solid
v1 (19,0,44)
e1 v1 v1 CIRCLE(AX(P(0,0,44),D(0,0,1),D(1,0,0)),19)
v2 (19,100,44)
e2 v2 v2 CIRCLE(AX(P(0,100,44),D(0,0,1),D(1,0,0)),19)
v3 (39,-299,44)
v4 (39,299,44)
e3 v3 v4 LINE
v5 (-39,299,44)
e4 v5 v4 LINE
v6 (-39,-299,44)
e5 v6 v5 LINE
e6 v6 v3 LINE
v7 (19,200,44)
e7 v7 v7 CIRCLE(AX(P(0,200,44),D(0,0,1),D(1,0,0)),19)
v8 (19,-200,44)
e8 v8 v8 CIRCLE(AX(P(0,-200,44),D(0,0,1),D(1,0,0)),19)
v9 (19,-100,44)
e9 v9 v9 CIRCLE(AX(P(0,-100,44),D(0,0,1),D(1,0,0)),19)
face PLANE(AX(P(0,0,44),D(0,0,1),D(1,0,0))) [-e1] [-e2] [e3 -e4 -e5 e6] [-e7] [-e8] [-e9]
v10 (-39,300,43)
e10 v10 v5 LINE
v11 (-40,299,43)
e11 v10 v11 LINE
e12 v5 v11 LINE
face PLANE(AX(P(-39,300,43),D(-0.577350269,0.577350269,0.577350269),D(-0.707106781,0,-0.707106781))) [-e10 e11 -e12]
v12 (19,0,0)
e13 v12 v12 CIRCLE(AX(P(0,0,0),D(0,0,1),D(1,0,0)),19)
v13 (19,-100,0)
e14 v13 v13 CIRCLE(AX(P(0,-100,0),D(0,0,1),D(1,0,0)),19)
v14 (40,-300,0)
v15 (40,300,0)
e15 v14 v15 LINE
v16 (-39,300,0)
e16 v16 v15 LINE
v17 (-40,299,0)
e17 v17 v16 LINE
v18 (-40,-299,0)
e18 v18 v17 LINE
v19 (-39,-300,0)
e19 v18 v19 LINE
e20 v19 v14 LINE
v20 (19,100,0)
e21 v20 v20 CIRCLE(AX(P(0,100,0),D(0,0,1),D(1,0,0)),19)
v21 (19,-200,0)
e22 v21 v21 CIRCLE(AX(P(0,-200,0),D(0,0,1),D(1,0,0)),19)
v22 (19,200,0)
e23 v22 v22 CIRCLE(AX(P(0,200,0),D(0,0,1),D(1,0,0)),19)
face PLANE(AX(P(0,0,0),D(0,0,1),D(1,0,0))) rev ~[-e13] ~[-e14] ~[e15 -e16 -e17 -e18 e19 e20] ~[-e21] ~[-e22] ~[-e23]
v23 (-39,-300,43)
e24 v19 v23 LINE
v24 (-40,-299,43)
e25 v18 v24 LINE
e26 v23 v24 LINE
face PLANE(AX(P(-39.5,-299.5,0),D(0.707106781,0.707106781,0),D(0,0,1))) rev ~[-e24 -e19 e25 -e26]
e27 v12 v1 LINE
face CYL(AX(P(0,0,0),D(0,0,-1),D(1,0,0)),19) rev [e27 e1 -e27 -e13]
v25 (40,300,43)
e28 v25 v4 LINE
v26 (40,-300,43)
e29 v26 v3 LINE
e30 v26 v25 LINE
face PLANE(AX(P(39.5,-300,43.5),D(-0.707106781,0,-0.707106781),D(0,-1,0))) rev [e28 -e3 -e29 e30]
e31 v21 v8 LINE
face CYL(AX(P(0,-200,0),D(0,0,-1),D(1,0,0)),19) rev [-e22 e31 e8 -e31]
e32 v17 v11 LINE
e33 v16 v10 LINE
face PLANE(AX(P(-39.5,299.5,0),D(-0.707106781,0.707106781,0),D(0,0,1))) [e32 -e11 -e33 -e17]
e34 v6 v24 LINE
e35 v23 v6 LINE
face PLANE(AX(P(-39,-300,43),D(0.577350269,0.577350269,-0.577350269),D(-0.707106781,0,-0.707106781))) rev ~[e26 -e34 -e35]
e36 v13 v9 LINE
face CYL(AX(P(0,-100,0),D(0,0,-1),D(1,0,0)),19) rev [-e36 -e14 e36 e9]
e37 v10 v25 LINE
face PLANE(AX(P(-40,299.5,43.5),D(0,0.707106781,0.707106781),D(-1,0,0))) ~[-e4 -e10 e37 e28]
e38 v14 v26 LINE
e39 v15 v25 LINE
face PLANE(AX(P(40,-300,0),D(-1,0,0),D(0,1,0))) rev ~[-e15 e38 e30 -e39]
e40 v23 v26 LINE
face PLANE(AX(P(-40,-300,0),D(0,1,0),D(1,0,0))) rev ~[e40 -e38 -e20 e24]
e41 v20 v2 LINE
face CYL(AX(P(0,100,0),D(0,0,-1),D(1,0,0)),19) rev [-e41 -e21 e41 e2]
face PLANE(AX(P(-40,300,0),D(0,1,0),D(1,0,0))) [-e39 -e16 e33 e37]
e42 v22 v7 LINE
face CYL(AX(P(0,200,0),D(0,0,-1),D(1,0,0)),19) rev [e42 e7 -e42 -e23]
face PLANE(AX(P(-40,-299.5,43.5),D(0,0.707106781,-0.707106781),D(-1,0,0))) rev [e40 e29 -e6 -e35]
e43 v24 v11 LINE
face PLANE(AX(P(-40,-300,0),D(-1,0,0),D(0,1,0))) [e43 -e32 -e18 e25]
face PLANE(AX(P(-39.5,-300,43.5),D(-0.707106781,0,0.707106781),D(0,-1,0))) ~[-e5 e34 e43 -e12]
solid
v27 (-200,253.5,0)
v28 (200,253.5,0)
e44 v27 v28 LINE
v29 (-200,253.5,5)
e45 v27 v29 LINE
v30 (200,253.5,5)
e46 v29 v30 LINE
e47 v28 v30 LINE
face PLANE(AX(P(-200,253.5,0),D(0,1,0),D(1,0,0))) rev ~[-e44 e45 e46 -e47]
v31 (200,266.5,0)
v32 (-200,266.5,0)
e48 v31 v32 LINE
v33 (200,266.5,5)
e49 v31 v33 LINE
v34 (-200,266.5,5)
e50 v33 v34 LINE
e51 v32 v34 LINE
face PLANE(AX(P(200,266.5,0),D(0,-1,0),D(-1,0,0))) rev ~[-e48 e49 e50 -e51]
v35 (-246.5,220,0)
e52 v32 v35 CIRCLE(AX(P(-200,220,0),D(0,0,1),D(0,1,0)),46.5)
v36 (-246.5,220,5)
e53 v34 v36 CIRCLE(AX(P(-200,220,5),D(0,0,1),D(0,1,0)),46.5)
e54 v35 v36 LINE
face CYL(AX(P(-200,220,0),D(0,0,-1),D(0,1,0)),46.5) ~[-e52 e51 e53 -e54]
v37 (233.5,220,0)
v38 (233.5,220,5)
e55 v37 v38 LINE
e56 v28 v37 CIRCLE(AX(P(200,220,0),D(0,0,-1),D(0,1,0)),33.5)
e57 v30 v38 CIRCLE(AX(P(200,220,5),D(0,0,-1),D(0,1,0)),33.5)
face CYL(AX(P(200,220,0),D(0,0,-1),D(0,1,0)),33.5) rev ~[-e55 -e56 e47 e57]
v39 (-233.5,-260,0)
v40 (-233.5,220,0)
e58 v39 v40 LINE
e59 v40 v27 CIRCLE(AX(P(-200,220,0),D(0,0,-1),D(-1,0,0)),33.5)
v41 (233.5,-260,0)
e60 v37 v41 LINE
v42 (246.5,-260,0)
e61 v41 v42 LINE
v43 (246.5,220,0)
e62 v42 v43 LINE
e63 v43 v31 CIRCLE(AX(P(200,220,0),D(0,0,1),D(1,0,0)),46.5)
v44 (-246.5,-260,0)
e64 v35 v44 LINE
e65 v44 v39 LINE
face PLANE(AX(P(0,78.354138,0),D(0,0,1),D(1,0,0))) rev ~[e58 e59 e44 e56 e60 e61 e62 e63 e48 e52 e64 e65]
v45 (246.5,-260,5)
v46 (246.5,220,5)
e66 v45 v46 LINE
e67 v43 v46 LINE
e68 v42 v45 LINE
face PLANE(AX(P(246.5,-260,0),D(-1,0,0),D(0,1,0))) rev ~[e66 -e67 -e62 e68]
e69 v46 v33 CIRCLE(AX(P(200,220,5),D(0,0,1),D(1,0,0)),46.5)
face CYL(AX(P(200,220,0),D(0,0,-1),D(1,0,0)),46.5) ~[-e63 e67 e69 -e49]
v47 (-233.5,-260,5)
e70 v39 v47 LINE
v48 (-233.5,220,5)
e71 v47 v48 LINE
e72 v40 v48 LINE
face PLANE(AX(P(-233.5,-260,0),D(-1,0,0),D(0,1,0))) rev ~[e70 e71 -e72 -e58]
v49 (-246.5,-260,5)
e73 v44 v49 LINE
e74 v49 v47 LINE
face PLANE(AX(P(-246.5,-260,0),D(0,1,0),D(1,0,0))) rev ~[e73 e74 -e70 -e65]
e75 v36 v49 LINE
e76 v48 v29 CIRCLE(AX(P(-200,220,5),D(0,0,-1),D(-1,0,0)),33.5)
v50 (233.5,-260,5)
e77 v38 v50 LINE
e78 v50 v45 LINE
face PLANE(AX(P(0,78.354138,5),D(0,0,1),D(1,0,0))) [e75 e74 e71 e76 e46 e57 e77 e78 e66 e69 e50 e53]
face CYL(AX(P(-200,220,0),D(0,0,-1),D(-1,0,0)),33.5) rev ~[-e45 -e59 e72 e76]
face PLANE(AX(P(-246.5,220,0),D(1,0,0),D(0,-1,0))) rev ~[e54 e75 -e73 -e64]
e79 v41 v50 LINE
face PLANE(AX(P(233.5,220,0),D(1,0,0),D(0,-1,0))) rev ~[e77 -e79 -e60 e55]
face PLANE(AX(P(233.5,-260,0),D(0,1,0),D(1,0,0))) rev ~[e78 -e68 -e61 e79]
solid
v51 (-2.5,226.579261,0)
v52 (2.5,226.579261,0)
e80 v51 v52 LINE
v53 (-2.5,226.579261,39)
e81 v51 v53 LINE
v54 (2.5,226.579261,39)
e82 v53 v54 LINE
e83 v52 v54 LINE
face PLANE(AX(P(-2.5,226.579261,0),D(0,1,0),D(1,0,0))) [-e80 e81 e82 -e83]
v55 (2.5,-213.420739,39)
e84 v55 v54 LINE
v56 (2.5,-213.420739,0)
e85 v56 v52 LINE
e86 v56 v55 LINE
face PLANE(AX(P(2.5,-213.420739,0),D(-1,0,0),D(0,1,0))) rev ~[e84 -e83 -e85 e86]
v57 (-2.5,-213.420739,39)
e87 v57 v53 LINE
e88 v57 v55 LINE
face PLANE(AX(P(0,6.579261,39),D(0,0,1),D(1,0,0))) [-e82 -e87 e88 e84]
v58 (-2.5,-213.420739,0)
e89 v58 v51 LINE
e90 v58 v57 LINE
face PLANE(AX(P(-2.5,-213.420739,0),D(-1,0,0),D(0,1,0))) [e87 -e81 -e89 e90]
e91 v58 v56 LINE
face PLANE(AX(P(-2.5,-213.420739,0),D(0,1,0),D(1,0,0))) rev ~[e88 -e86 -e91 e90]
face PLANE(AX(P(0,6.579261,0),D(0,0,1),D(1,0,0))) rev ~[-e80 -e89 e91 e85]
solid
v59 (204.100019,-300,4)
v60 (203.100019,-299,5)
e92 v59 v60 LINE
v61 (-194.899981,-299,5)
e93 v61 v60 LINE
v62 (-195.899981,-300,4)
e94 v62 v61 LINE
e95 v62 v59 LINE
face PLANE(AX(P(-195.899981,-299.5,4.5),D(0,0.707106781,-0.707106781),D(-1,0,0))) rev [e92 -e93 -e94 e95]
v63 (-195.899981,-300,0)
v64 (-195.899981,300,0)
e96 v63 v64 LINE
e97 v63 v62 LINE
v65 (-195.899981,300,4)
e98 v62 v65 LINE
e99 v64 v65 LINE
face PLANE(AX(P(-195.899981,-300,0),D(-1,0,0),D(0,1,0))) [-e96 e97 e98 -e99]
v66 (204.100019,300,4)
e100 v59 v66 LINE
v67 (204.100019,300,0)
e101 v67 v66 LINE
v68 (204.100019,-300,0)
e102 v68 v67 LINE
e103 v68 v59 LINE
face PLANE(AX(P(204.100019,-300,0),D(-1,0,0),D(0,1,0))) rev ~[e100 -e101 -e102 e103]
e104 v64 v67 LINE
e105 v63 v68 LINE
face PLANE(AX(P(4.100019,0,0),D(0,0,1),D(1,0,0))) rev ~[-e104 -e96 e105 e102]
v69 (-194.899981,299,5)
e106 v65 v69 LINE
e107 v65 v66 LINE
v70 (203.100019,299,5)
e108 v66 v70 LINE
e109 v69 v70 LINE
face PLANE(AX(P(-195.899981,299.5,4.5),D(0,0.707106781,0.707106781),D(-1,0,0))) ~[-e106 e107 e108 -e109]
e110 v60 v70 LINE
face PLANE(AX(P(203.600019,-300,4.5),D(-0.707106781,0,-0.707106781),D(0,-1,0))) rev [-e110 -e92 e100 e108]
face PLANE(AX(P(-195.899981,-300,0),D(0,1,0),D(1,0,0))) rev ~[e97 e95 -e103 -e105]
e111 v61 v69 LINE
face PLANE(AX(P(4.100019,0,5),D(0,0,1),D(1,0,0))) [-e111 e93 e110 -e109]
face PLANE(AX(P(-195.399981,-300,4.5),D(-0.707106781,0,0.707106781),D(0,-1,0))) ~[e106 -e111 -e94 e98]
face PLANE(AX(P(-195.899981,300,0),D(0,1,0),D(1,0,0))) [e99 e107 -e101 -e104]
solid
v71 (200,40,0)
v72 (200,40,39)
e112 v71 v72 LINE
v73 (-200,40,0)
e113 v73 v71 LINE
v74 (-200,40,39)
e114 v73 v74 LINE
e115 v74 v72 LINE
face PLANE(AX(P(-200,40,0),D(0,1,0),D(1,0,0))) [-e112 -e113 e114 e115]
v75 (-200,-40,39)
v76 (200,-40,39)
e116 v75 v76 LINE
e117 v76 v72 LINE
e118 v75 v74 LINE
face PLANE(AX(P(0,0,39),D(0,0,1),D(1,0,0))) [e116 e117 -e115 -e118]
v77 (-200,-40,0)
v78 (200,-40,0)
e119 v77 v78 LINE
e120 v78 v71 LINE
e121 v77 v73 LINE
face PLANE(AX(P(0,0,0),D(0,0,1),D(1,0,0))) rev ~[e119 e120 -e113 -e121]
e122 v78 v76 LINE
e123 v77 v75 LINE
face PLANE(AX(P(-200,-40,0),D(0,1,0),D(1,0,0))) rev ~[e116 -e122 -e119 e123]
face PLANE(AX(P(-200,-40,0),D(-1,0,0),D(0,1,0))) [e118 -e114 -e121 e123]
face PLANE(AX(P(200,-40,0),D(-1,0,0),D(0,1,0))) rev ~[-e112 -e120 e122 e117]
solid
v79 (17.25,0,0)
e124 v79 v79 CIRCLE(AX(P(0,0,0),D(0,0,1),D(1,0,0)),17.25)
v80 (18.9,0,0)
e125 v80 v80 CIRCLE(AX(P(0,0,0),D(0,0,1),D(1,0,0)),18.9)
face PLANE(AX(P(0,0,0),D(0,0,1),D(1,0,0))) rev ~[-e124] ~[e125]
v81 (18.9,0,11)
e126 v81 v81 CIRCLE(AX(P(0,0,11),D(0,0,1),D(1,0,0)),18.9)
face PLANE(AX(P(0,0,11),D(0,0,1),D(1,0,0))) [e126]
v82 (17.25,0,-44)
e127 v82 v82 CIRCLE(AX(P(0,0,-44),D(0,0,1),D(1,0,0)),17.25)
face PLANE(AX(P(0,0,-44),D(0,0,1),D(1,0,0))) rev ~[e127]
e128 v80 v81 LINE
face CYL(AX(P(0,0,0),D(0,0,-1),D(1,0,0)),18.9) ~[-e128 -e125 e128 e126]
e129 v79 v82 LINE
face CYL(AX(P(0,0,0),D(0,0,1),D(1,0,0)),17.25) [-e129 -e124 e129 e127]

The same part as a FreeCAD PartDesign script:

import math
import FreeCAD as App
import Part
import Sketcher
from FreeCAD import Vector
Q = App.Units.Quantity


def edges_at(feature, points):
    """Names of the edges that pass closest to the given points."""
    edges = feature.Shape.Edges
    near = lambda p: min(range(len(edges)), key=lambda i: edges[i].distToShape(Part.Vertex(*p))[0])
    return sorted({f"Edge{near(p) + 1}" for p in points})

doc = App.newDocument("Part")
body = doc.addObject("PartDesign::Body", "Body")

sketch1 = doc.addObject("Sketcher::SketchObject", "Sketch")
body.addObject(sketch1)
sketch1.AttachmentSupport = (doc.XY_Plane, [""])
sketch1.MapMode = "FlatFace"
sketch1.addGeometry([
    Part.LineSegment(Vector(-40, 300, 0), Vector(-40, -300, 0)),
    Part.LineSegment(Vector(-40, -300, 0), Vector(40, -300, 0)),
    Part.LineSegment(Vector(40, -300, 0), Vector(40, 300, 0)),
    Part.LineSegment(Vector(40, 300, 0), Vector(-40, 300, 0)),
    Part.Circle(Vector(0, -200, 0), Vector(0, 0, 1), 19),
    Part.Circle(Vector(0, -100, 0), Vector(0, 0, 1), 19),
    Part.Circle(Vector(0, 0, 0), Vector(0, 0, 1), 19),
    Part.Circle(Vector(0, 100, 0), Vector(0, 0, 1), 19),
    Part.Circle(Vector(0, 200, 0), Vector(0, 0, 1), 19),
], False)
sketch1.addConstraint([
    Sketcher.Constraint("Coincident", 0, 2, 1, 1),
    Sketcher.Constraint("Coincident", 1, 2, 2, 1),
    Sketcher.Constraint("Coincident", 2, 2, 3, 1),
    Sketcher.Constraint("Coincident", 3, 2, 0, 1),
    Sketcher.Constraint("Vertical", 0),
    Sketcher.Constraint("Horizontal", 1),
    Sketcher.Constraint("Vertical", 2),
    Sketcher.Constraint("Horizontal", 3),
    Sketcher.Constraint("Coincident", 6, 3, -1, 1),
    Sketcher.Constraint("Equal", 4, 5),
    Sketcher.Constraint("Equal", 5, 6),
    Sketcher.Constraint("Equal", 6, 7),
    Sketcher.Constraint("Equal", 7, 8),
    Sketcher.Constraint("Symmetric", 5, 3, 7, 3, -1, 1),
    Sketcher.Constraint("Symmetric", 4, 3, 8, 3, -1, 1),
    Sketcher.Constraint("Symmetric", 0, 2, 2, 2, -1, 1),
    Sketcher.Constraint("PointOnObject", 4, 3, -2),
    Sketcher.Constraint("PointOnObject", 5, 3, -2),
    Sketcher.Constraint("Diameter", 4, Q("38 mm")),
    Sketcher.Constraint("DistanceX", 1, 1, 1, 2, Q("80 mm")),
    Sketcher.Constraint("DistanceY", 0, 2, 0, 1, Q("600 mm")),
    Sketcher.Constraint("DistanceY", 4, 3, -1, 1, Q("200 mm")),
    Sketcher.Constraint("DistanceY", 5, 3, -1, 1, Q("100 mm")),
])
pad1 = doc.addObject("PartDesign::Pad", "Pad")
body.addObject(pad1)
pad1.Profile = sketch1
pad1.Length = 44
doc.recompute()

chamfer = doc.addObject("PartDesign::Chamfer", "Chamfer")
body.addObject(chamfer)
chamfer.Base = (pad1, edges_at(pad1, [
    (40, 0, 44),
    (-40, 0, 44),
    (0, -300, 44),
    (0, 300, 44),
    (-40, -300, 22),
    (-40, 300, 22),
]))
chamfer.Size = 1
body2 = doc.addObject("PartDesign::Body", "Body001")

sketch2 = doc.addObject("Sketcher::SketchObject", "Sketch001")
body2.addObject(sketch2)
sketch2.AttachmentSupport = (doc.getObject("XY_Plane001"), [""])
sketch2.MapMode = "FlatFace"
sketch2.addGeometry([
    Part.LineSegment(Vector(-200, 40, 0), Vector(-200, -40, 0)),
    Part.LineSegment(Vector(-200, -40, 0), Vector(200, -40, 0)),
    Part.LineSegment(Vector(200, -40, 0), Vector(200, 40, 0)),
    Part.LineSegment(Vector(200, 40, 0), Vector(-200, 40, 0)),
], False)
sketch2.addConstraint([
    Sketcher.Constraint("Coincident", 0, 2, 1, 1),
    Sketcher.Constraint("Coincident", 1, 2, 2, 1),
    Sketcher.Constraint("Coincident", 2, 2, 3, 1),
    Sketcher.Constraint("Coincident", 3, 2, 0, 1),
    Sketcher.Constraint("Vertical", 0),
    Sketcher.Constraint("Horizontal", 1),
    Sketcher.Constraint("Vertical", 2),
    Sketcher.Constraint("Horizontal", 3),
    Sketcher.Constraint("Symmetric", 0, 2, 2, 2, -1, 1),
    Sketcher.Constraint("DistanceX", 1, 1, 1, 2, Q("400 mm")),
    Sketcher.Constraint("DistanceY", 0, 2, 0, 1, Q("80 mm")),
])
pad2 = doc.addObject("PartDesign::Pad", "Pad001")
body2.addObject(pad2)
pad2.Profile = sketch2
pad2.Length = 39
body3 = doc.addObject("PartDesign::Body", "Body002")

sketch3 = doc.addObject("Sketcher::SketchObject", "Sketch002")
body3.addObject(sketch3)
sketch3.AttachmentSupport = (doc.getObject("XY_Plane002"), [""])
sketch3.MapMode = "FlatFace"
sketch3.addGeometry([
    Part.LineSegment(Vector(-196, 300, 0), Vector(-196, -300, 0)),
    Part.LineSegment(Vector(-196, -300, 0), Vector(204, -300, 0)),
    Part.LineSegment(Vector(204, -300, 0), Vector(204, 300, 0)),
    Part.LineSegment(Vector(204, 300, 0), Vector(-196, 300, 0)),
], False)
sketch3.addConstraint([
    Sketcher.Constraint("Coincident", 0, 2, 1, 1),
    Sketcher.Constraint("Coincident", 1, 2, 2, 1),
    Sketcher.Constraint("Coincident", 2, 2, 3, 1),
    Sketcher.Constraint("Coincident", 3, 2, 0, 1),
    Sketcher.Constraint("Vertical", 0),
    Sketcher.Constraint("Horizontal", 1),
    Sketcher.Constraint("Vertical", 2),
    Sketcher.Constraint("Horizontal", 3),
    Sketcher.Constraint("DistanceX", 1, 1, 1, 2, Q("400 mm")),
    Sketcher.Constraint("DistanceY", 0, 2, 0, 1, Q("600 mm")),
    Sketcher.Constraint("DistanceY", 0, 2, -1, 1, Q("300 mm")),
    Sketcher.Constraint("DistanceX", 0, 2, -1, 1, Q("195.899981 mm")),
])
pad3 = doc.addObject("PartDesign::Pad", "Pad002")
body3.addObject(pad3)
pad3.Profile = sketch3
pad3.Length = 5
doc.recompute()

chamfer2 = doc.addObject("PartDesign::Chamfer", "Chamfer001")
body3.addObject(chamfer2)
chamfer2.Base = (pad3, edges_at(pad3, [
    (-195.9, 0, 5),
    (4.1, -300, 5),
    (204.1, 0, 5),
    (4.1, 300, 5),
]))
chamfer2.Size = 1
body4 = doc.addObject("PartDesign::Body", "Body003")

sketch4 = doc.addObject("Sketcher::SketchObject", "Sketch003")
body4.addObject(sketch4)
sketch4.AttachmentSupport = (doc.getObject("XY_Plane003"), [""])
sketch4.MapMode = "FlatFace"
sketch4.addGeometry([
    Part.LineSegment(Vector(-2, 227, 0), Vector(-2, -213, 0)),
    Part.LineSegment(Vector(-2, -213, 0), Vector(2, -213, 0)),
    Part.LineSegment(Vector(2, -213, 0), Vector(2, 227, 0)),
    Part.LineSegment(Vector(2, 227, 0), Vector(-2, 227, 0)),
], False)
sketch4.addConstraint([
    Sketcher.Constraint("Coincident", 0, 2, 1, 1),
    Sketcher.Constraint("Coincident", 1, 2, 2, 1),
    Sketcher.Constraint("Coincident", 2, 2, 3, 1),
    Sketcher.Constraint("Coincident", 3, 2, 0, 1),
    Sketcher.Constraint("Vertical", 0),
    Sketcher.Constraint("Horizontal", 1),
    Sketcher.Constraint("Vertical", 2),
    Sketcher.Constraint("Horizontal", 3),
    Sketcher.Constraint("DistanceX", 1, 1, 1, 2, Q("5 mm")),
    Sketcher.Constraint("DistanceY", 0, 2, 0, 1, Q("440 mm")),
    Sketcher.Constraint("DistanceX", 0, 2, -1, 1, Q("2.5 mm")),
    Sketcher.Constraint("DistanceY", 0, 2, -1, 1, Q("213.420739 mm")),
])
pad4 = doc.addObject("PartDesign::Pad", "Pad003")
body4.addObject(pad4)
pad4.Profile = sketch4
pad4.Length = 39
body5 = doc.addObject("PartDesign::Body", "Body004")

sketch5 = doc.addObject("Sketcher::SketchObject", "Sketch004")
body5.addObject(sketch5)
sketch5.AttachmentSupport = (doc.getObject("XY_Plane004"), [""])
sketch5.MapMode = "FlatFace"
sketch5.addGeometry(Part.Circle(Vector(0, 0, 0), Vector(0, 0, 1), 17), False)
sketch5.addConstraint([
    Sketcher.Constraint("Coincident", 0, 3, -1, 1),
    Sketcher.Constraint("Diameter", 0, Q("34.5 mm")),
])
pad5 = doc.addObject("PartDesign::Pad", "Pad004")
body5.addObject(pad5)
pad5.Profile = sketch5
pad5.Length = 44
pad5.Reversed = True

sketch6 = doc.addObject("Sketcher::SketchObject", "Sketch005")
body5.addObject(sketch6)
sketch6.AttachmentSupport = (doc.getObject("XY_Plane004"), [""])
sketch6.MapMode = "FlatFace"
sketch6.addGeometry(Part.Circle(Vector(0, 0, 0), Vector(0, 0, 1), 19), False)
sketch6.addConstraint([
    Sketcher.Constraint("Coincident", 0, 3, -1, 1),
    Sketcher.Constraint("Diameter", 0, Q("37.8 mm")),
])
pad6 = doc.addObject("PartDesign::Pad", "Pad005")
body5.addObject(pad6)
pad6.Profile = sketch6
pad6.Length = 11
body6 = doc.addObject("PartDesign::Body", "Body005")

sketch7 = doc.addObject("Sketcher::SketchObject", "Sketch006")
body6.addObject(sketch7)
sketch7.AttachmentSupport = (doc.getObject("XY_Plane005"), [""])
sketch7.MapMode = "FlatFace"
sketch7.addGeometry([
    Part.LineSegment(Vector(246, -260, 0), Vector(246, 220, 0)),
    Part.ArcOfCircle(Part.Circle(Vector(200, 220, 0), Vector(0, 0, 1), 46), math.radians(0), math.radians(90)),
    Part.LineSegment(Vector(200, 266, 0), Vector(-200, 266, 0)),
    Part.ArcOfCircle(Part.Circle(Vector(-200, 220, 0), Vector(0, 0, 1), 46), math.radians(90), math.radians(180)),
    Part.LineSegment(Vector(-246, 220, 0), Vector(-246, -260, 0)),
    Part.LineSegment(Vector(-246, -260, 0), Vector(-234, -260, 0)),
    Part.LineSegment(Vector(-234, -260, 0), Vector(-234, 220, 0)),
    Part.ArcOfCircle(Part.Circle(Vector(-200, 220, 0), Vector(0, 0, 1), 34), math.radians(90), math.radians(180)),
    Part.LineSegment(Vector(-200, 254, 0), Vector(200, 254, 0)),
    Part.ArcOfCircle(Part.Circle(Vector(200, 220, 0), Vector(0, 0, 1), 34), math.radians(0), math.radians(90)),
    Part.LineSegment(Vector(234, 220, 0), Vector(234, -260, 0)),
    Part.LineSegment(Vector(234, -260, 0), Vector(246, -260, 0)),
], False)
sketch7.addConstraint([
    Sketcher.Constraint("Tangent", 0, 2, 1, 1),
    Sketcher.Constraint("Tangent", 1, 2, 2, 1),
    Sketcher.Constraint("Tangent", 2, 2, 3, 1),
    Sketcher.Constraint("Tangent", 3, 2, 4, 1),
    Sketcher.Constraint("Coincident", 4, 2, 5, 1),
    Sketcher.Constraint("Coincident", 5, 2, 6, 1),
    Sketcher.Constraint("Tangent", 6, 2, 7, 2),
    Sketcher.Constraint("Tangent", 7, 1, 8, 1),
    Sketcher.Constraint("Tangent", 8, 2, 9, 2),
    Sketcher.Constraint("Tangent", 9, 1, 10, 1),
    Sketcher.Constraint("Coincident", 10, 2, 11, 1),
    Sketcher.Constraint("Coincident", 11, 2, 0, 1),
    Sketcher.Constraint("Vertical", 0),
    Sketcher.Constraint("Horizontal", 2),
    Sketcher.Constraint("Vertical", 4),
    Sketcher.Constraint("Horizontal", 5),
    Sketcher.Constraint("Vertical", 6),
    Sketcher.Constraint("Horizontal", 8),
    Sketcher.Constraint("Vertical", 10),
    Sketcher.Constraint("Horizontal", 11),
    Sketcher.Constraint("Coincident", 7, 3, 3, 3),
    Sketcher.Constraint("Coincident", 9, 3, 1, 3),
    Sketcher.Constraint("Equal", 1, 3),
    Sketcher.Constraint("Symmetric", 5, 2, 10, 2, -2),
    Sketcher.Constraint("Radius", 1, Q("46.5 mm")),
    Sketcher.Constraint("Radius", 7, Q("33.5 mm")),
    Sketcher.Constraint("DistanceX", 2, 2, 2, 1, Q("400 mm")),
    Sketcher.Constraint("DistanceY", 0, 1, 0, 2, Q("480 mm")),
    Sketcher.Constraint("DistanceY", -1, 1, 1, 3, Q("220 mm")),
])
pad7 = doc.addObject("PartDesign::Pad", "Pad006")
body6.addObject(pad7)
pad7.Profile = sketch7
pad7.Length = 5

doc.recompute()
